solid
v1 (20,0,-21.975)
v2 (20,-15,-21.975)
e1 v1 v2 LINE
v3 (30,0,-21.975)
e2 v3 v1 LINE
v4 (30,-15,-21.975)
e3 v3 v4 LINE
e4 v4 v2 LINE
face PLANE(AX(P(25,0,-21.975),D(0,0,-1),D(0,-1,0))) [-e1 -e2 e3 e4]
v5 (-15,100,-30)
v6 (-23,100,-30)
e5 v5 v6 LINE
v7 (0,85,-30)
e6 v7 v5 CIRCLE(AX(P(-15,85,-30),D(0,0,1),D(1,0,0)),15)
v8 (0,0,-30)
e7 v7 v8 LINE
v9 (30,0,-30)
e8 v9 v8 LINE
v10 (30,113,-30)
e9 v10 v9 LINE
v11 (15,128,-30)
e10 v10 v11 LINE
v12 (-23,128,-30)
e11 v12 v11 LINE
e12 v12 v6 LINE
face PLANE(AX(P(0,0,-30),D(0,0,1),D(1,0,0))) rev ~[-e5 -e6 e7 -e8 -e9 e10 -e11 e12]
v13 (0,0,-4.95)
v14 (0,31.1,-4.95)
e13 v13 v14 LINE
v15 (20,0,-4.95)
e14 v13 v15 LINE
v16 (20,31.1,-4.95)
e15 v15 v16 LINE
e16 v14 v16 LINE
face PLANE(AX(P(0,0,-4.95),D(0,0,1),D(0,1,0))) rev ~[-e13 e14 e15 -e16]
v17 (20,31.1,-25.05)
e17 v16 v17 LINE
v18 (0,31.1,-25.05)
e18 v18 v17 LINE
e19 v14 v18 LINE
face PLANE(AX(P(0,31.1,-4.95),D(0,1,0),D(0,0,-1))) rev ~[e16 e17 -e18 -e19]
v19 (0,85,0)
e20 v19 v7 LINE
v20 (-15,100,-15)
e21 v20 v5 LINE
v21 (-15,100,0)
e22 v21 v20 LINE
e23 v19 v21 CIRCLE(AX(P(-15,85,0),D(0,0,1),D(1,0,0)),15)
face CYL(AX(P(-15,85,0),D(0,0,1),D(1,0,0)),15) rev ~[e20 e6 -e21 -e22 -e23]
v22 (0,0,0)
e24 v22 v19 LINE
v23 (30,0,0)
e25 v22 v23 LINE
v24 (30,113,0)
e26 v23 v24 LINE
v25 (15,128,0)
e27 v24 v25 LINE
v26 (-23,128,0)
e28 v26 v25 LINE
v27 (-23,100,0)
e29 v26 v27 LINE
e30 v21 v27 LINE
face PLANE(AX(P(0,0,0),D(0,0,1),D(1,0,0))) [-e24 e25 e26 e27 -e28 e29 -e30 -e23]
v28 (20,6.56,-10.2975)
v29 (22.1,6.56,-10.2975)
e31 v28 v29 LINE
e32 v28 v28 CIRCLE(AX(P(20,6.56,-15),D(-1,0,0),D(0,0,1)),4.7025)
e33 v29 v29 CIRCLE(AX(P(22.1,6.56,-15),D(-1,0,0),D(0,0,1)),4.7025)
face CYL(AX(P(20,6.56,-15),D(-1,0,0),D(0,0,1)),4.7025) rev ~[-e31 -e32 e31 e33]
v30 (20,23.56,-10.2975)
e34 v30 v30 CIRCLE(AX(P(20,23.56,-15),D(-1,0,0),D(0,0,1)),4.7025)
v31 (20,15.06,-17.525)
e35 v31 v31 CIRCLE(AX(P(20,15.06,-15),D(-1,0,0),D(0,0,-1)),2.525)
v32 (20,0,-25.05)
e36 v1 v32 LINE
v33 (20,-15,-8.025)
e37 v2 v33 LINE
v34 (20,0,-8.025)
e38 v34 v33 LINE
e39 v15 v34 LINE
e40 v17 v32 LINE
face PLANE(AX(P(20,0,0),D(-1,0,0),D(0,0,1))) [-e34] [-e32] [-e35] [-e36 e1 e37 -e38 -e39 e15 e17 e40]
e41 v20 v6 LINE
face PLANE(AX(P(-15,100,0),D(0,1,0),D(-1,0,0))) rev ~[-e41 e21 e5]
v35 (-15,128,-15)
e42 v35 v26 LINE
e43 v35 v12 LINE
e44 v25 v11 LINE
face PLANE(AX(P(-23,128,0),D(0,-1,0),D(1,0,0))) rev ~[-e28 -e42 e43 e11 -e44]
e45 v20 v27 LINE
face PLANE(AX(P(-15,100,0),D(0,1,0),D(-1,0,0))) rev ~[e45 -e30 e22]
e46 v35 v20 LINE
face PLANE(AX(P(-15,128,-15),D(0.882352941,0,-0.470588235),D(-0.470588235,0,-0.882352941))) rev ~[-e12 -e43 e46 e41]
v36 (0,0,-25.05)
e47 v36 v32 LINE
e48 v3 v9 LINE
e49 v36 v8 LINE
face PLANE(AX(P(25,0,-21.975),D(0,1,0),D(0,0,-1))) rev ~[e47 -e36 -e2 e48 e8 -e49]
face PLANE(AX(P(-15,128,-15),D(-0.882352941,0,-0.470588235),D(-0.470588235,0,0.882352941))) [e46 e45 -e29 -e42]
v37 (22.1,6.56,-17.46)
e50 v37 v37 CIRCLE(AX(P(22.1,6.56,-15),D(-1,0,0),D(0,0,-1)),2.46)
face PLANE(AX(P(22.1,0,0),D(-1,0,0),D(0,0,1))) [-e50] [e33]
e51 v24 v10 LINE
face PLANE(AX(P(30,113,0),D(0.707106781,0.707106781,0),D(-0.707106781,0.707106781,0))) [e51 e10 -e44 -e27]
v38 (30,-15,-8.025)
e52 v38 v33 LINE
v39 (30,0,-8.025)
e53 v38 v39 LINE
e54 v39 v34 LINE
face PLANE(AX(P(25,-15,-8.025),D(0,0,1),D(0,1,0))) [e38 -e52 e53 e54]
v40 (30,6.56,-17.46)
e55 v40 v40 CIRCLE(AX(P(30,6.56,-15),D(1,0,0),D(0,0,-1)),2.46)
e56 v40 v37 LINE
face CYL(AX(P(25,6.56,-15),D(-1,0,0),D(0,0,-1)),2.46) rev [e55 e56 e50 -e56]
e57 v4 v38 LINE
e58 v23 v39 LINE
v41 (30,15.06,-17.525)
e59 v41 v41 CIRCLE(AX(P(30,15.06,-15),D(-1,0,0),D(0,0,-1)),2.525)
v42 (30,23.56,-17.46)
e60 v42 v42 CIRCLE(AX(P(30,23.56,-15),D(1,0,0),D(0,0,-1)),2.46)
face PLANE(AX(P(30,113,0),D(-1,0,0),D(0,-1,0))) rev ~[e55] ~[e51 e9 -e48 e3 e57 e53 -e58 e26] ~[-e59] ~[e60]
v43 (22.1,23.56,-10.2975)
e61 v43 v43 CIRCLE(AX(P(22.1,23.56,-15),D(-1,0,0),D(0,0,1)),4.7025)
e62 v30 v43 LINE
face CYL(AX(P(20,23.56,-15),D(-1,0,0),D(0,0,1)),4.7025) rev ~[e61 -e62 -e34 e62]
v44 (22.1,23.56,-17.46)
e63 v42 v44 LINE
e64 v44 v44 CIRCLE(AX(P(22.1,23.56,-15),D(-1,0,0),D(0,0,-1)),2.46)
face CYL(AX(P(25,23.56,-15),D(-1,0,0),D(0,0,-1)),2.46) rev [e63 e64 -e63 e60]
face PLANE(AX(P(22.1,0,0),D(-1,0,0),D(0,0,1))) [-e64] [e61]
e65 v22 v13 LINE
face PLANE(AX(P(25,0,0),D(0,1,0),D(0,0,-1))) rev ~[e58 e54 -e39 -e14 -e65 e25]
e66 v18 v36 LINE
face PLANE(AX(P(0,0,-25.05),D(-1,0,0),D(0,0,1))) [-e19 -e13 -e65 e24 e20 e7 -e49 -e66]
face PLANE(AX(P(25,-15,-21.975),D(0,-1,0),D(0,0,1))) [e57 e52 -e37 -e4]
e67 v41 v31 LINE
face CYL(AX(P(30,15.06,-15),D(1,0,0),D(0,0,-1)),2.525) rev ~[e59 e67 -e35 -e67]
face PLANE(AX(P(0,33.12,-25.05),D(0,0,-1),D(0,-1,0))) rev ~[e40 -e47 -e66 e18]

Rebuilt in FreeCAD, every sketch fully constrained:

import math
import FreeCAD as App
import Part
import Sketcher

V = App.Vector

doc = App.newDocument("Part")
body = doc.addObject("PartDesign::Body", "Body")

sketch1 = body.newObject("Sketcher::SketchObject", "Sketch")
sketch1.AttachmentSupport = (doc.getObject("XY_Plane"), [""])
sketch1.MapMode = "FlatFace"
sketch1.addGeometry([
    Part.LineSegment(V(0, 40, 0), V(0, 0, 0)),
    Part.LineSegment(V(0, 0, 0), V(25, 0, 0)),
    Part.LineSegment(V(25, 0, 0), V(25, 40, 0)),
    Part.LineSegment(V(25, 40, 0), V(0, 40, 0)),
], False)
sketch1.addConstraint([
    Sketcher.Constraint("Coincident", 0, 2, 1, 1),
    Sketcher.Constraint("Coincident", 1, 2, 2, 1),
    Sketcher.Constraint("Coincident", 2, 2, 3, 1),
    Sketcher.Constraint("Coincident", 3, 2, 0, 1),
    Sketcher.Constraint("Vertical", 0),
    Sketcher.Constraint("Horizontal", 1),
    Sketcher.Constraint("Vertical", 2),
    Sketcher.Constraint("Horizontal", 3),
    Sketcher.Constraint("Coincident", 0, 2, -1, 1),
    Sketcher.Constraint("DistanceX", 1, 1, 1, 2, 25.0),
    Sketcher.Constraint("DistanceY", 0, 2, 0, 1, 40.0),
])
pad1 = body.newObject("PartDesign::Pad", "Pad")
pad1.Profile = sketch1
pad1.Length = 30
pad1.Reversed = True

sketch2 = body.newObject("Sketcher::SketchObject", "Sketch001")
sketch2.AttachmentSupport = (doc.getObject("YZ_Plane"), [""])
sketch2.MapMode = "FlatFace"
sketch2.AttachmentOffset = App.Placement(V(0, 0, 25), App.Rotation())
sketch2.addGeometry(Part.Circle(V(6.6, -15, 0), V(0, 0, 1), 2.5), False)
sketch2.addConstraint([
    Sketcher.Constraint("Diameter", 0, 4.92),
    Sketcher.Constraint("DistanceY", 0, 3, -1, 1, 15.0),
    Sketcher.Constraint("DistanceX", -1, 1, 0, 3, 6.56),
])
pocket1 = body.newObject("PartDesign::Pocket", "Pocket")
pocket1.Profile = sketch2
pocket1.Length = 30

sketch3 = body.newObject("Sketcher::SketchObject", "Sketch002")
sketch3.AttachmentSupport = (doc.getObject("YZ_Plane"), [""])
sketch3.MapMode = "FlatFace"
sketch3.addGeometry([
    Part.LineSegment(V(0, -25, 0), V(0, -5, 0)),
    Part.LineSegment(V(0, -5, 0), V(33, -5, 0)),
    Part.LineSegment(V(33, -5, 0), V(33, -25, 0)),
    Part.LineSegment(V(33, -25, 0), V(0, -25, 0)),
], False)
sketch3.addConstraint([
    Sketcher.Constraint("Coincident", 0, 2, 1, 1),
    Sketcher.Constraint("Coincident", 1, 2, 2, 1),
    Sketcher.Constraint("Coincident", 2, 2, 3, 1),
    Sketcher.Constraint("Coincident", 3, 2, 0, 1),
    Sketcher.Constraint("Vertical", 0),
    Sketcher.Constraint("Horizontal", 1),
    Sketcher.Constraint("Vertical", 2),
    Sketcher.Constraint("Horizontal", 3),
    Sketcher.Constraint("PointOnObject", 0, 2, -2),
    Sketcher.Constraint("DistanceY", 0, 1, 0, 2, 20.1),
    Sketcher.Constraint("DistanceX", 1, 1, 1, 2, 33.12),
    Sketcher.Constraint("DistanceY", 0, 2, -1, 1, 4.95),
])
pocket2 = body.newObject("PartDesign::Pocket", "Pocket001")
pocket2.Profile = sketch3
pocket2.Length = 20
pocket2.Reversed = True

sketch4 = body.newObject("Sketcher::SketchObject", "Sketch003")
sketch4.AttachmentSupport = (doc.getObject("XZ_Plane"), [""])
sketch4.MapMode = "FlatFace"
sketch4.addGeometry([
    Part.LineSegment(V(25, -8, 0), V(20, -8, 0)),
    Part.LineSegment(V(20, -8, 0), V(20, -22, 0)),
    Part.LineSegment(V(20, -22, 0), V(25, -22, 0)),
    Part.LineSegment(V(25, -22, 0), V(25, -8, 0)),
], False)
sketch4.addConstraint([
    Sketcher.Constraint("Coincident", 0, 2, 1, 1),
    Sketcher.Constraint("Coincident", 1, 2, 2, 1),
    Sketcher.Constraint("Coincident", 2, 2, 3, 1),
    Sketcher.Constraint("Coincident", 3, 2, 0, 1),
    Sketcher.Constraint("Horizontal", 0),
    Sketcher.Constraint("Vertical", 1),
    Sketcher.Constraint("Horizontal", 2),
    Sketcher.Constraint("Vertical", 3),
    Sketcher.Constraint("DistanceY", 1, 2, 1, 1, 13.95),
    Sketcher.Constraint("DistanceX", 0, 2, 0, 1, 5.0),
    Sketcher.Constraint("DistanceX", -1, 1, 0, 2, 20.0),
    Sketcher.Constraint("DistanceY", 0, 2, -1, 1, 8.025),
])
pad2 = body.newObject("PartDesign::Pad", "Pad001")
pad2.Profile = sketch4
pad2.Length = 15

sketch5 = body.newObject("Sketcher::SketchObject", "Sketch004")
sketch5.AttachmentSupport = (doc.getObject("YZ_Plane"), [""])
sketch5.MapMode = "FlatFace"
sketch5.AttachmentOffset = App.Placement(V(0, 0, 20), App.Rotation())
sketch5.addGeometry([
    Part.Circle(V(6.6, -15, 0), V(0, 0, 1), 4.7),
    Part.Circle(V(6.6, -15, 0), V(0, 0, 1), 2.5),
], False)
sketch5.addConstraint([
    Sketcher.Constraint("Coincident", 1, 3, 0, 3),
    Sketcher.Constraint("Diameter", 0, 9.405),
    Sketcher.Constraint("Diameter", 1, 4.92),
    Sketcher.Constraint("DistanceY", 0, 3, -1, 1, 15.0),
    Sketcher.Constraint("DistanceX", -1, 1, 0, 3, 6.56),
])
pocket3 = body.newObject("PartDesign::Pocket", "Pocket002")
pocket3.Profile = sketch5
pocket3.Length = 2.1
pocket3.Reversed = True

sketch6 = body.newObject("Sketcher::SketchObject", "Sketch005")
sketch6.AttachmentSupport = (doc.getObject("YZ_Plane"), [""])
sketch6.MapMode = "FlatFace"
sketch6.AttachmentOffset = App.Placement(V(0, 0, 25), App.Rotation())
sketch6.addGeometry(Part.Circle(V(23.6, -15, 0), V(0, 0, 1), 2.5), False)
sketch6.addConstraint([
    Sketcher.Constraint("Diameter", 0, 4.92),
    Sketcher.Constraint("DistanceY", 0, 3, -1, 1, 15.0),
    Sketcher.Constraint("DistanceX", -1, 1, 0, 3, 23.56),
])
pocket4 = body.newObject("PartDesign::Pocket", "Pocket003")
pocket4.Profile = sketch6
pocket4.Length = 10

sketch7 = body.newObject("Sketcher::SketchObject", "Sketch006")
sketch7.AttachmentSupport = (doc.getObject("YZ_Plane"), [""])
sketch7.MapMode = "FlatFace"
sketch7.AttachmentOffset = App.Placement(V(0, 0, 20), App.Rotation())
sketch7.addGeometry([
    Part.Circle(V(23.6, -15, 0), V(0, 0, 1), 4.7),
    Part.Circle(V(23.6, -15, 0), V(0, 0, 1), 2.5),
], False)
sketch7.addConstraint([
    Sketcher.Constraint("Coincident", 1, 3, 0, 3),
    Sketcher.Constraint("Diameter", 0, 9.405),
    Sketcher.Constraint("Diameter", 1, 4.92),
    Sketcher.Constraint("DistanceY", 0, 3, -1, 1, 15.0),
    Sketcher.Constraint("DistanceX", -1, 1, 0, 3, 23.56),
])
pocket5 = body.newObject("PartDesign::Pocket", "Pocket004")
pocket5.Profile = sketch7
pocket5.Length = 2.1
pocket5.Reversed = True

sketch8 = body.newObject("Sketcher::SketchObject", "Sketch007")
sketch8.AttachmentSupport = (doc.getObject("YZ_Plane"), [""])
sketch8.MapMode = "FlatFace"
sketch8.AttachmentOffset = App.Placement(V(0, 0, 25), App.Rotation())
sketch8.addGeometry([
    Part.LineSegment(V(0, -30, 0), V(40, -30, 0)),
    Part.LineSegment(V(40, -30, 0), V(40, 0, 0)),
    Part.LineSegment(V(40, 0, 0), V(0, 0, 0)),
    Part.LineSegment(V(0, 0, 0), V(0, -8, 0)),
    Part.LineSegment(V(0, -8, 0), V(-15, -8, 0)),
    Part.LineSegment(V(-15, -8, 0), V(-15, -22, 0)),
    Part.LineSegment(V(-15, -22, 0), V(0, -22, 0)),
    Part.LineSegment(V(0, -22, 0), V(0, -30, 0)),
    Part.Circle(V(6.6, -15, 0), V(0, 0, 1), 2.5),
    Part.Circle(V(23.6, -15, 0), V(0, 0, 1), 2.5),
], False)
sketch8.addConstraint([
    Sketcher.Constraint("Coincident", 0, 2, 1, 1),
    Sketcher.Constraint("Coincident", 1, 2, 2, 1),
    Sketcher.Constraint("Coincident", 2, 2, 3, 1),
    Sketcher.Constraint("Coincident", 3, 2, 4, 1),
    Sketcher.Constraint("Coincident", 4, 2, 5, 1),
    Sketcher.Constraint("Coincident", 5, 2, 6, 1),
    Sketcher.Constraint("Coincident", 6, 2, 7, 1),
    Sketcher.Constraint("Coincident", 7, 2, 0, 1),
    Sketcher.Constraint("Horizontal", 0),
    Sketcher.Constraint("Vertical", 1),
    Sketcher.Constraint("Horizontal", 2),
    Sketcher.Constraint("Vertical", 3),
    Sketcher.Constraint("Horizontal", 4),
    Sketcher.Constraint("Vertical", 5),
    Sketcher.Constraint("Horizontal", 6),
    Sketcher.Constraint("Vertical", 7),
    Sketcher.Constraint("Coincident", 2, 2, -1, 1),
    Sketcher.Constraint("Equal", 8, 9),
    Sketcher.Constraint("PointOnObject", 6, 2, -2),
    Sketcher.Constraint("Horizontal", 8, 3, 9, 3),
    Sketcher.Constraint("Equal", 3, 7),
    Sketcher.Constraint("Diameter", 8, 4.92),
    Sketcher.Constraint("DistanceX", 0, 1, 0, 2, 40.0),
    Sketcher.Constraint("DistanceX", 4, 2, 4, 1, 15.0),
    Sketcher.Constraint("DistanceY", 1, 1, 1, 2, 30.0),
    Sketcher.Constraint("DistanceY", 8, 3, -1, 1, 15.0),
    Sketcher.Constraint("DistanceX", 8, 3, 9, 3, 17.0),
    Sketcher.Constraint("DistanceY", 5, 2, 5, 1, 13.95),
    Sketcher.Constraint("DistanceX", -1, 1, 8, 3, 6.56),
])
pad3 = body.newObject("PartDesign::Pad", "Pad002")
pad3.Profile = sketch8
pad3.Length = 5

sketch9 = body.newObject("Sketcher::SketchObject", "Sketch008")
sketch9.AttachmentSupport = (doc.getObject("XZ_Plane"), [""])
sketch9.MapMode = "FlatFace"
sketch9.AttachmentOffset = App.Placement(V(0, 0, -40), App.Rotation())
sketch9.addGeometry([
    Part.LineSegment(V(30, -30, 0), V(0, -30, 0)),
    Part.LineSegment(V(0, -30, 0), V(0, 0, 0)),
    Part.LineSegment(V(0, 0, 0), V(30, 0, 0)),
    Part.LineSegment(V(30, 0, 0), V(30, -30, 0)),
], False)
sketch9.addConstraint([
    Sketcher.Constraint("Coincident", 0, 2, 1, 1),
    Sketcher.Constraint("Coincident", 1, 2, 2, 1),
    Sketcher.Constraint("Coincident", 2, 2, 3, 1),
    Sketcher.Constraint("Coincident", 3, 2, 0, 1),
    Sketcher.Constraint("Horizontal", 0),
    Sketcher.Constraint("Vertical", 1),
    Sketcher.Constraint("Horizontal", 2),
    Sketcher.Constraint("Vertical", 3),
    Sketcher.Constraint("Coincident", 1, 2, -1, 1),
    Sketcher.Constraint("Equal", 2, 1),
    Sketcher.Constraint("DistanceX", 0, 2, 0, 1, 30.0),
])
pad4 = body.newObject("PartDesign::Pad", "Pad003")
pad4.Profile = sketch9
pad4.Length = 30
pad4.Reversed = True

sketch10 = body.newObject("Sketcher::SketchObject", "Sketch009")
sketch10.AttachmentSupport = (doc.getObject("YZ_Plane"), [""])
sketch10.MapMode = "FlatFace"
sketch10.AttachmentOffset = App.Placement(V(0, 0, 30), App.Rotation())
sketch10.addGeometry(Part.Circle(V(15.1, -15, 0), V(0, 0, 1), 2.5), False)
sketch10.addConstraint([
    Sketcher.Constraint("Diameter", 0, 5.05),
    Sketcher.Constraint("DistanceY", 0, 3, -1, 1, 15.0),
    Sketcher.Constraint("DistanceX", -1, 1, 0, 3, 15.06),
])
pocket6 = body.newObject("PartDesign::Pocket", "Pocket005")
pocket6.Profile = sketch10
pocket6.Length = 30

sketch11 = body.newObject("Sketcher::SketchObject", "Sketch010")
sketch11.AttachmentSupport = (doc.getObject("XY_Plane"), [""])
sketch11.MapMode = "FlatFace"
sketch11.addGeometry([
    Part.LineSegment(V(0, 70, 0), V(30, 70, 0)),
    Part.LineSegment(V(30, 70, 0), V(30, 113, 0)),
    Part.LineSegment(V(30, 113, 0), V(15, 128, 0)),
    Part.LineSegment(V(15, 128, 0), V(-23, 128, 0)),
    Part.LineSegment(V(-23, 128, 0), V(-23, 100, 0)),
    Part.LineSegment(V(-23, 100, 0), V(-15, 100, 0)),
    Part.ArcOfCircle(Part.Circle(V(-15, 85, 0), V(0, 0, 1), 15), math.radians(0), math.radians(90)),
    Part.LineSegment(V(0, 85, 0), V(0, 70, 0)),
], False)
sketch11.addConstraint([
    Sketcher.Constraint("Coincident", 0, 2, 1, 1),
    Sketcher.Constraint("Coincident", 1, 2, 2, 1),
    Sketcher.Constraint("Coincident", 2, 2, 3, 1),
    Sketcher.Constraint("Coincident", 3, 2, 4, 1),
    Sketcher.Constraint("Coincident", 4, 2, 5, 1),
    Sketcher.Constraint("Tangent", 5, 2, 6, 2),
    Sketcher.Constraint("Tangent", 6, 1, 7, 1),
    Sketcher.Constraint("Coincident", 7, 2, 0, 1),
    Sketcher.Constraint("Horizontal", 0),
    Sketcher.Constraint("Vertical", 1),
    Sketcher.Constraint("Horizontal", 3),
    Sketcher.Constraint("Vertical", 4),
    Sketcher.Constraint("Horizontal", 5),
    Sketcher.Constraint("Vertical", 7),
    Sketcher.Constraint("PointOnObject", 6, 1, -2),
    Sketcher.Constraint("Radius", 6, 15.0),
    Sketcher.Constraint("DistanceX", 0, 1, 0, 2, 30.0),
    Sketcher.Constraint("DistanceY", 4, 2, 4, 1, 28.0),
    Sketcher.Constraint("DistanceY", 7, 2, 7, 1, 15.0),
    Sketcher.Constraint("DistanceX", -1, 1, 2, 2, 15.0),
    Sketcher.Constraint("DistanceY", 6, 3, 1, 2, 28.0),
    Sketcher.Constraint("DistanceX", 3, 2, 3, 1, 38.0),
    Sketcher.Constraint("DistanceY", -1, 1, 6, 3, 85.0),
])
pad5 = body.newObject("PartDesign::Pad", "Pad004")
pad5.Profile = sketch11
pad5.Length = 30
pad5.Reversed = True

sketch12 = body.newObject("Sketcher::SketchObject", "Sketch011")
sketch12.AttachmentSupport = (doc.getObject("YZ_Plane"), [""])
sketch12.MapMode = "FlatFace"
sketch12.addGeometry([
    Part.LineSegment(V(33.1, -5, 0), V(33.1, -25.1, 0)),
    Part.LineSegment(V(33.1, -25.1, 0), V(31.1, -25.1, 0)),
    Part.LineSegment(V(31.1, -25.1, 0), V(31.1, -5, 0)),
    Part.LineSegment(V(31.1, -5, 0), V(33.1, -5, 0)),
], False)
sketch12.addConstraint([
    Sketcher.Constraint("Coincident", 0, 2, 1, 1),
    Sketcher.Constraint("Coincident", 1, 2, 2, 1),
    Sketcher.Constraint("Coincident", 2, 2, 3, 1),
    Sketcher.Constraint("Coincident", 3, 2, 0, 1),
    Sketcher.Constraint("Vertical", 0),
    Sketcher.Constraint("Horizontal", 1),
    Sketcher.Constraint("Vertical", 2),
    Sketcher.Constraint("Horizontal", 3),
    Sketcher.Constraint("DistanceX", 1, 2, 1, 1, 2.02),
    Sketcher.Constraint("DistanceY", 0, 2, 0, 1, 20.1),
    Sketcher.Constraint("DistanceX", -1, 1, 1, 2, 31.1),
    Sketcher.Constraint("DistanceY", 0, 2, -1, 1, 25.05),
])
pad6 = body.newObject("PartDesign::Pad", "Pad005")
pad6.Profile = sketch12
pad6.Length = 20

sketch13 = body.newObject("Sketcher::SketchObject", "Sketch012")
sketch13.AttachmentSupport = (doc.getObject("XZ_Plane"), [""])
sketch13.MapMode = "FlatFace"
sketch13.AttachmentOffset = App.Placement(V(0, 0, -128), App.Rotation())
sketch13.addGeometry([
    Part.LineSegment(V(-23, -30, 0), V(-23, 0, 0)),
    Part.LineSegment(V(-23, 0, 0), V(-15, -15, 0)),
    Part.LineSegment(V(-15, -15, 0), V(-23, -30, 0)),
], False)
sketch13.addConstraint([
    Sketcher.Constraint("Coincident", 0, 2, 1, 1),
    Sketcher.Constraint("Coincident", 1, 2, 2, 1),
    Sketcher.Constraint("Coincident", 2, 2, 0, 1),
    Sketcher.Constraint("Vertical", 0),
    Sketcher.Constraint("PointOnObject", 0, 2, -1),
    Sketcher.Constraint("Equal", 1, 2),
    Sketcher.Constraint("DistanceY", 0, 1, 0, 2, 30.0),
    Sketcher.Constraint("Distance", 1, 17.0),
    Sketcher.Constraint("DistanceX", 0, 2, -1, 1, 23.0),
])
pocket7 = body.newObject("PartDesign::Pocket", "Pocket006")
pocket7.Profile = sketch13
pocket7.Type = "ThroughAll"
pocket7.Reversed = True

doc.recompute()
